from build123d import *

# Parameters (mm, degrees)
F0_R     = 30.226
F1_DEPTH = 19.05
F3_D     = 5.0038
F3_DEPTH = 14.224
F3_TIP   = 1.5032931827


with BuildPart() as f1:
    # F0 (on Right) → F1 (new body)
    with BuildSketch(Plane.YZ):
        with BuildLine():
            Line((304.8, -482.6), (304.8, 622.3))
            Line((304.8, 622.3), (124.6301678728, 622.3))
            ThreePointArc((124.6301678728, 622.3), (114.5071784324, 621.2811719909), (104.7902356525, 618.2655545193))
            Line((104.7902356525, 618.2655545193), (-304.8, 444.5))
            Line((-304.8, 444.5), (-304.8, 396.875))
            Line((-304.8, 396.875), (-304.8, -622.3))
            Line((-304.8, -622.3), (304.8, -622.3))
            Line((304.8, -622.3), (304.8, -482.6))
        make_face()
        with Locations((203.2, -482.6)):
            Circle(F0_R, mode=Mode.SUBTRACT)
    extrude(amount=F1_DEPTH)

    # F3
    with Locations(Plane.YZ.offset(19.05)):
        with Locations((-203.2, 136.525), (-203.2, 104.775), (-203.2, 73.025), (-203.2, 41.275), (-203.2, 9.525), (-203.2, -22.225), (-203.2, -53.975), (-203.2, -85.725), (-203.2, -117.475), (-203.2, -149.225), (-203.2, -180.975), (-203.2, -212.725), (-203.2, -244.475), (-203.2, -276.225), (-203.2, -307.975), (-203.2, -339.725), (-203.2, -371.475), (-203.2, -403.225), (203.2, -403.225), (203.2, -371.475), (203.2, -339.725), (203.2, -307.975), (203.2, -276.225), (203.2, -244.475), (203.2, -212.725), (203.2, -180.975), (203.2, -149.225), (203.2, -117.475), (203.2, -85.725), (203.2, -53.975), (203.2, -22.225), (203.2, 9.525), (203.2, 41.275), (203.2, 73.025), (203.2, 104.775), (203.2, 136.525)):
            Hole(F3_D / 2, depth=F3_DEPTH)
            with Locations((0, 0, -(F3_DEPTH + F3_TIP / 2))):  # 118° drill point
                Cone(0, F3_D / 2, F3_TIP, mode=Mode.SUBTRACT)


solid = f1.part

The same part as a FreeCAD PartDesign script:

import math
import FreeCAD as App
import Part
import Sketcher
Q = App.Units.Quantity

doc = App.newDocument("Part")
body = doc.addObject("PartDesign::Body", "Body")

# Sketch on YZ plane
sketch1 = body.newObject("Sketcher::SketchObject", "Sketch")
sketch1.AttachmentSupport = (doc.getObject("YZ_Plane"), [""])
sketch1.MapMode = "FlatFace"
sketch1.addGeometry(Part.LineSegment(App.Vector(305, 622, 0), App.Vector(125, 622, 0)), False)
sketch1.addGeometry(Part.ArcOfCircle(Part.Circle(App.Vector(125, 571, 0), App.Vector(0, 0, 1), 51), math.radians(90), math.radians(113)), False)
sketch1.addGeometry(Part.LineSegment(App.Vector(105, 618, 0), App.Vector(-305, 444, 0)), False)
sketch1.addGeometry(Part.LineSegment(App.Vector(-305, 444, 0), App.Vector(-305, -622, 0)), False)
sketch1.addGeometry(Part.LineSegment(App.Vector(-305, -622, 0), App.Vector(305, -622, 0)), False)
sketch1.addGeometry(Part.LineSegment(App.Vector(305, -622, 0), App.Vector(305, 622, 0)), False)
sketch1.addGeometry(Part.Circle(App.Vector(203, -483, 0), App.Vector(0, 0, 1), 30), False)
sketch1.addConstraint(Sketcher.Constraint("Tangent", 0, 2, 1, 1))
sketch1.addConstraint(Sketcher.Constraint("Tangent", 1, 2, 2, 1))
sketch1.addConstraint(Sketcher.Constraint("Coincident", 2, 2, 3, 1))
sketch1.addConstraint(Sketcher.Constraint("Coincident", 3, 2, 4, 1))
sketch1.addConstraint(Sketcher.Constraint("Coincident", 4, 2, 5, 1))
sketch1.addConstraint(Sketcher.Constraint("Coincident", 5, 2, 0, 1))
sketch1.addConstraint(Sketcher.Constraint("Horizontal", 0))
sketch1.addConstraint(Sketcher.Constraint("Vertical", 3))
sketch1.addConstraint(Sketcher.Constraint("Horizontal", 4))
sketch1.addConstraint(Sketcher.Constraint("Vertical", 5))
sketch1.addConstraint(Sketcher.Constraint("Symmetric", 3, 2, 5, 2, -1, 1))
sketch1.addConstraint(Sketcher.Constraint("Radius", 1, Q("2 in")))
sketch1.addConstraint(Sketcher.Constraint("Diameter", 6, Q("2.38 in")))
sketch1.addConstraint(Sketcher.Constraint("DistanceX", 4, 1, 4, 2, Q("24 in")))
sketch1.addConstraint(Sketcher.Constraint("DistanceY", 3, 2, 3, 1, Q("42 in")))
sketch1.addConstraint(Sketcher.Constraint("DistanceY", 5, 1, 5, 2, Q("49 in")))
sketch1.addConstraint(Sketcher.Constraint("DistanceX", -1, 1, 6, 3, Q("8 in")))
sketch1.addConstraint(Sketcher.Constraint("DistanceY", 6, 3, -1, 1, Q("19 in")))
sketch1.addConstraint(Sketcher.Constraint("DistanceX", -1, 1, 1, 2, Q("4.1255998 in")))
pad1 = body.newObject("PartDesign::Pad", "Pad")
pad1.Profile = sketch1
pad1.Length = Q("0.75 in")

# Sketch on YZ plane
sketch2 = body.newObject("Sketcher::SketchObject", "Sketch001")
sketch2.AttachmentSupport = (doc.getObject("YZ_Plane"), [""])
sketch2.MapMode = "FlatFace"
sketch2.AttachmentOffset = App.Placement(App.Vector(0, 0, 0.75 * 25.4), App.Rotation())
sketch2.addGeometry(Part.Circle(App.Vector(-203.2, 136.5, 0), App.Vector(0, 0, 1), 2.5), False)
sketch2.addGeometry(Part.Circle(App.Vector(-203.2, 104.8, 0), App.Vector(0, 0, 1), 2.5), False)
sketch2.addGeometry(Part.Circle(App.Vector(-203.2, 73, 0), App.Vector(0, 0, 1), 2.5), False)
sketch2.addGeometry(Part.Circle(App.Vector(-203.2, 41.3, 0), App.Vector(0, 0, 1), 2.5), False)
sketch2.addGeometry(Part.Circle(App.Vector(-203.2, 9.5, 0), App.Vector(0, 0, 1), 2.5), False)
sketch2.addGeometry(Part.Circle(App.Vector(-203.2, -22.2, 0), App.Vector(0, 0, 1), 2.5), False)
sketch2.addGeometry(Part.Circle(App.Vector(-203.2, -54, 0), App.Vector(0, 0, 1), 2.5), False)
sketch2.addGeometry(Part.Circle(App.Vector(-203.2, -85.7, 0), App.Vector(0, 0, 1), 2.5), False)
sketch2.addGeometry(Part.Circle(App.Vector(-203.2, -117.5, 0), App.Vector(0, 0, 1), 2.5), False)
sketch2.addGeometry(Part.Circle(App.Vector(-203.2, -149.2, 0), App.Vector(0, 0, 1), 2.5), False)
sketch2.addGeometry(Part.Circle(App.Vector(-203.2, -181, 0), App.Vector(0, 0, 1), 2.5), False)
sketch2.addGeometry(Part.Circle(App.Vector(-203.2, -212.7, 0), App.Vector(0, 0, 1), 2.5), False)
sketch2.addGeometry(Part.Circle(App.Vector(-203.2, -244.5, 0), App.Vector(0, 0, 1), 2.5), False)
sketch2.addGeometry(Part.Circle(App.Vector(-203.2, -276.2, 0), App.Vector(0, 0, 1), 2.5), False)
sketch2.addGeometry(Part.Circle(App.Vector(-203.2, -308, 0), App.Vector(0, 0, 1), 2.5), False)
sketch2.addGeometry(Part.Circle(App.Vector(-203.2, -339.7, 0), App.Vector(0, 0, 1), 2.5), False)
sketch2.addGeometry(Part.Circle(App.Vector(-203.2, -371.5, 0), App.Vector(0, 0, 1), 2.5), False)
sketch2.addGeometry(Part.Circle(App.Vector(-203.2, -403.2, 0), App.Vector(0, 0, 1), 2.5), False)
sketch2.addGeometry(Part.Circle(App.Vector(203.2, -403.2, 0), App.Vector(0, 0, 1), 2.5), False)
sketch2.addGeometry(Part.Circle(App.Vector(203.2, -371.5, 0), App.Vector(0, 0, 1), 2.5), False)
sketch2.addGeometry(Part.Circle(App.Vector(203.2, -339.7, 0), App.Vector(0, 0, 1), 2.5), False)
sketch2.addGeometry(Part.Circle(App.Vector(203.2, -308, 0), App.Vector(0, 0, 1), 2.5), False)
sketch2.addGeometry(Part.Circle(App.Vector(203.2, -276.2, 0), App.Vector(0, 0, 1), 2.5), False)
sketch2.addGeometry(Part.Circle(App.Vector(203.2, -244.5, 0), App.Vector(0, 0, 1), 2.5), False)
sketch2.addGeometry(Part.Circle(App.Vector(203.2, -212.7, 0), App.Vector(0, 0, 1), 2.5), False)
sketch2.addGeometry(Part.Circle(App.Vector(203.2, -181, 0), App.Vector(0, 0, 1), 2.5), False)
sketch2.addGeometry(Part.Circle(App.Vector(203.2, -149.2, 0), App.Vector(0, 0, 1), 2.5), False)
sketch2.addGeometry(Part.Circle(App.Vector(203.2, -117.5, 0), App.Vector(0, 0, 1), 2.5), False)
sketch2.addGeometry(Part.Circle(App.Vector(203.2, -85.7, 0), App.Vector(0, 0, 1), 2.5), False)
sketch2.addGeometry(Part.Circle(App.Vector(203.2, -54, 0), App.Vector(0, 0, 1), 2.5), False)
sketch2.addGeometry(Part.Circle(App.Vector(203.2, -22.2, 0), App.Vector(0, 0, 1), 2.5), False)
sketch2.addGeometry(Part.Circle(App.Vector(203.2, 9.5, 0), App.Vector(0, 0, 1), 2.5), False)
sketch2.addGeometry(Part.Circle(App.Vector(203.2, 41.3, 0), App.Vector(0, 0, 1), 2.5), False)
sketch2.addGeometry(Part.Circle(App.Vector(203.2, 73, 0), App.Vector(0, 0, 1), 2.5), False)
sketch2.addGeometry(Part.Circle(App.Vector(203.2, 104.8, 0), App.Vector(0, 0, 1), 2.5), False)
sketch2.addGeometry(Part.Circle(App.Vector(203.2, 136.5, 0), App.Vector(0, 0, 1), 2.5), False)
sketch2.addConstraint(Sketcher.Constraint("Equal", 0, 1))
sketch2.addConstraint(Sketcher.Constraint("Equal", 1, 2))
sketch2.addConstraint(Sketcher.Constraint("Equal", 2, 3))
sketch2.addConstraint(Sketcher.Constraint("Equal", 3, 4))
sketch2.addConstraint(Sketcher.Constraint("Equal", 4, 5))
sketch2.addConstraint(Sketcher.Constraint("Equal", 5, 6))
sketch2.addConstraint(Sketcher.Constraint("Equal", 6, 7))
sketch2.addConstraint(Sketcher.Constraint("Equal", 7, 8))
sketch2.addConstraint(Sketcher.Constraint("Equal", 8, 9))
sketch2.addConstraint(Sketcher.Constraint("Equal", 9, 10))
sketch2.addConstraint(Sketcher.Constraint("Equal", 10, 11))
sketch2.addConstraint(Sketcher.Constraint("Equal", 11, 12))
sketch2.addConstraint(Sketcher.Constraint("Equal", 12, 13))
sketch2.addConstraint(Sketcher.Constraint("Equal", 13, 14))
sketch2.addConstraint(Sketcher.Constraint("Equal", 14, 15))
sketch2.addConstraint(Sketcher.Constraint("Equal", 15, 16))
sketch2.addConstraint(Sketcher.Constraint("Equal", 16, 17))
sketch2.addConstraint(Sketcher.Constraint("Equal", 17, 18))
sketch2.addConstraint(Sketcher.Constraint("Equal", 18, 19))
sketch2.addConstraint(Sketcher.Constraint("Equal", 19, 20))
sketch2.addConstraint(Sketcher.Constraint("Equal", 20, 21))
sketch2.addConstraint(Sketcher.Constraint("Equal", 21, 22))
sketch2.addConstraint(Sketcher.Constraint("Equal", 22, 23))
sketch2.addConstraint(Sketcher.Constraint("Equal", 23, 24))
sketch2.addConstraint(Sketcher.Constraint("Equal", 24, 25))
sketch2.addConstraint(Sketcher.Constraint("Equal", 25, 26))
sketch2.addConstraint(Sketcher.Constraint("Equal", 26, 27))
sketch2.addConstraint(Sketcher.Constraint("Equal", 27, 28))
sketch2.addConstraint(Sketcher.Constraint("Equal", 28, 29))
sketch2.addConstraint(Sketcher.Constraint("Equal", 29, 30))
sketch2.addConstraint(Sketcher.Constraint("Equal", 30, 31))
sketch2.addConstraint(Sketcher.Constraint("Equal", 31, 32))
sketch2.addConstraint(Sketcher.Constraint("Equal", 32, 33))
sketch2.addConstraint(Sketcher.Constraint("Equal", 33, 34))
sketch2.addConstraint(Sketcher.Constraint("Equal", 34, 35))
sketch2.addConstraint(Sketcher.Constraint("Symmetric", 17, 3, 18, 3, -2))
sketch2.addConstraint(Sketcher.Constraint("Symmetric", 16, 3, 19, 3, -2))
sketch2.addConstraint(Sketcher.Constraint("Symmetric", 15, 3, 20, 3, -2))
sketch2.addConstraint(Sketcher.Constraint("Symmetric", 14, 3, 21, 3, -2))
sketch2.addConstraint(Sketcher.Constraint("Symmetric", 13, 3, 22, 3, -2))
sketch2.addConstraint(Sketcher.Constraint("Symmetric", 12, 3, 23, 3, -2))
sketch2.addConstraint(Sketcher.Constraint("Symmetric", 11, 3, 24, 3, -2))
sketch2.addConstraint(Sketcher.Constraint("Symmetric", 10, 3, 25, 3, -2))
sketch2.addConstraint(Sketcher.Constraint("Symmetric", 9, 3, 26, 3, -2))
sketch2.addConstraint(Sketcher.Constraint("Symmetric", 8, 3, 27, 3, -2))
sketch2.addConstraint(Sketcher.Constraint("Symmetric", 7, 3, 28, 3, -2))
sketch2.addConstraint(Sketcher.Constraint("Symmetric", 6, 3, 29, 3, -2))
sketch2.addConstraint(Sketcher.Constraint("Symmetric", 5, 3, 30, 3, -2))
sketch2.addConstraint(Sketcher.Constraint("Symmetric", 4, 3, 31, 3, -2))
sketch2.addConstraint(Sketcher.Constraint("Symmetric", 3, 3, 32, 3, -2))
sketch2.addConstraint(Sketcher.Constraint("Symmetric", 2, 3, 33, 3, -2))
sketch2.addConstraint(Sketcher.Constraint("Symmetric", 1, 3, 34, 3, -2))
sketch2.addConstraint(Sketcher.Constraint("Symmetric", 0, 3, 35, 3, -2))
sketch2.addConstraint(Sketcher.Constraint("Vertical", 0, 3, 1, 3))
sketch2.addConstraint(Sketcher.Constraint("Vertical", 1, 3, 2, 3))
sketch2.addConstraint(Sketcher.Constraint("Vertical", 2, 3, 3, 3))
sketch2.addConstraint(Sketcher.Constraint("Vertical", 3, 3, 4, 3))
sketch2.addConstraint(Sketcher.Constraint("Vertical", 4, 3, 5, 3))
sketch2.addConstraint(Sketcher.Constraint("Vertical", 5, 3, 6, 3))
sketch2.addConstraint(Sketcher.Constraint("Vertical", 6, 3, 7, 3))
sketch2.addConstraint(Sketcher.Constraint("Vertical", 7, 3, 8, 3))
sketch2.addConstraint(Sketcher.Constraint("Vertical", 8, 3, 9, 3))
sketch2.addConstraint(Sketcher.Constraint("Vertical", 9, 3, 10, 3))
sketch2.addConstraint(Sketcher.Constraint("Vertical", 10, 3, 11, 3))
sketch2.addConstraint(Sketcher.Constraint("Vertical", 11, 3, 12, 3))
sketch2.addConstraint(Sketcher.Constraint("Vertical", 12, 3, 13, 3))
sketch2.addConstraint(Sketcher.Constraint("Vertical", 13, 3, 14, 3))
sketch2.addConstraint(Sketcher.Constraint("Vertical", 14, 3, 15, 3))
sketch2.addConstraint(Sketcher.Constraint("Vertical", 15, 3, 16, 3))
sketch2.addConstraint(Sketcher.Constraint("Vertical", 16, 3, 17, 3))
sketch2.addConstraint(Sketcher.Constraint("Diameter", 0, Q("0.197 in")))
sketch2.addConstraint(Sketcher.Constraint("DistanceX", 0, 3, -1, 1, Q("8 in")))
sketch2.addConstraint(Sketcher.Constraint("DistanceY", 4, 3, 0, 3, Q("5 in")))
sketch2.addConstraint(Sketcher.Constraint("DistanceY", 5, 3, 1, 3, Q("5 in")))
sketch2.addConstraint(Sketcher.Constraint("DistanceY", 6, 3, 2, 3, Q("5 in")))
sketch2.addConstraint(Sketcher.Constraint("DistanceY", 7, 3, 3, 3, Q("5 in")))
sketch2.addConstraint(Sketcher.Constraint("DistanceY", 8, 3, 4, 3, Q("5 in")))
sketch2.addConstraint(Sketcher.Constraint("DistanceY", 9, 3, 5, 3, Q("5 in")))
sketch2.addConstraint(Sketcher.Constraint("DistanceY", 10, 3, 6, 3, Q("5 in")))
sketch2.addConstraint(Sketcher.Constraint("DistanceY", 11, 3, 7, 3, Q("5 in")))
sketch2.addConstraint(Sketcher.Constraint("DistanceY", 12, 3, 8, 3, Q("5 in")))
sketch2.addConstraint(Sketcher.Constraint("DistanceY", 13, 3, 9, 3, Q("5 in")))
sketch2.addConstraint(Sketcher.Constraint("DistanceY", 14, 3, 10, 3, Q("5 in")))
sketch2.addConstraint(Sketcher.Constraint("DistanceY", 15, 3, 11, 3, Q("5 in")))
sketch2.addConstraint(Sketcher.Constraint("DistanceY", 16, 3, 12, 3, Q("5 in")))
sketch2.addConstraint(Sketcher.Constraint("DistanceY", 17, 3, 13, 3, Q("5 in")))
sketch2.addConstraint(Sketcher.Constraint("DistanceY", 2, 3, 0, 3, Q("2.5 in")))
sketch2.addConstraint(Sketcher.Constraint("DistanceY", 3, 3, 1, 3, Q("2.5 in")))
sketch2.addConstraint(Sketcher.Constraint("DistanceY", 1, 3, 0, 3, Q("1.25 in")))
sketch2.addConstraint(Sketcher.Constraint("DistanceY", -1, 1, 0, 3, Q("5.375 in")))
doc.recompute()
hole = body.newObject("PartDesign::Hole", "Hole")
hole.Profile = sketch2
hole.ThreadType = "None"
hole.Diameter = Q("0.197 in")
hole.DepthType = "Dimension"
hole.Depth = Q("0.56 in")
hole.DrillPoint = "Angled"
hole.DrillPointAngle = 118

doc.recompute()
